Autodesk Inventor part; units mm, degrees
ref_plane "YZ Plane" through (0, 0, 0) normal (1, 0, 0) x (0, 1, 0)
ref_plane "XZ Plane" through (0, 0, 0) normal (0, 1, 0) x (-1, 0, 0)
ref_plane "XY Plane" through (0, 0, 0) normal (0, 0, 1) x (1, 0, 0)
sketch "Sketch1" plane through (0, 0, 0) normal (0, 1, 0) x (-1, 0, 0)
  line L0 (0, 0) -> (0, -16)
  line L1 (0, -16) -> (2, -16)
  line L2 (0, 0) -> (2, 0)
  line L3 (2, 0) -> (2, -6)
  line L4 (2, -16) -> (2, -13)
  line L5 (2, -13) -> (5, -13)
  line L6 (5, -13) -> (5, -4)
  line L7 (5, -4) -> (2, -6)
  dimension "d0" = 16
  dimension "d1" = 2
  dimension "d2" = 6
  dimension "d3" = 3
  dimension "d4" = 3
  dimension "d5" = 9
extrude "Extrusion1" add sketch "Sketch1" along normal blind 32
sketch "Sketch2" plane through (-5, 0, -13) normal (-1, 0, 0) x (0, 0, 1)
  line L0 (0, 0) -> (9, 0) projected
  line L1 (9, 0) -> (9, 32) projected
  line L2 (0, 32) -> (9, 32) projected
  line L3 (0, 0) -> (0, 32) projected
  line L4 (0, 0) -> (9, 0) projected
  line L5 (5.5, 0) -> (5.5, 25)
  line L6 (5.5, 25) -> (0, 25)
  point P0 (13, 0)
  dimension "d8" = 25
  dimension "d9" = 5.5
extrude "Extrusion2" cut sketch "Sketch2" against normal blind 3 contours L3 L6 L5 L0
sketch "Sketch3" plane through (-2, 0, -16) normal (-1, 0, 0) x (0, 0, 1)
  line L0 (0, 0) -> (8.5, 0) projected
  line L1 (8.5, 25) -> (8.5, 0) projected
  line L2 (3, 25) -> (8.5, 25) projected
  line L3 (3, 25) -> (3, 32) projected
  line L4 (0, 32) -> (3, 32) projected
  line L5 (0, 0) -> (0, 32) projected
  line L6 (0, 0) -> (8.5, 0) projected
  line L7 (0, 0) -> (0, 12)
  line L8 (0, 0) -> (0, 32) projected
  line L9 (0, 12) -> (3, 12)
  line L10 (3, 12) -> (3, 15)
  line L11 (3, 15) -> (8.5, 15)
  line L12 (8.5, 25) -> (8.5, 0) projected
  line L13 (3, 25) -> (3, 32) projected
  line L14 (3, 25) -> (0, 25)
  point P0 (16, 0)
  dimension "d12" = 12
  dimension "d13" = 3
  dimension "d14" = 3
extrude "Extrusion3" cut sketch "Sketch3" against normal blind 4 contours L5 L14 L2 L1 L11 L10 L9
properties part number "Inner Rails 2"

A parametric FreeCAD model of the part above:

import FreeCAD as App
import Part
import Sketcher
from FreeCAD import Vector
Q = App.Units.Quantity


def add_polygon(sketch, points):
    """Adds a closed chain of lines whose ends are joined by coincident constraints."""
    first, n = sketch.GeometryCount, len(points)
    for a, b in zip(points, points[1:] + points[:1]):
        sketch.addGeometry(Part.LineSegment(App.Vector(*a, 0), App.Vector(*b, 0)), False)
    for i in range(n):
        sketch.addConstraint(Sketcher.Constraint("Coincident", first + i, 2, first + (i + 1) % n, 1))

doc = App.newDocument("Part")
params = doc.addObject("Spreadsheet::Sheet", "Params")
for row, (alias, value) in enumerate([
    ("sketch1_width", "2 mm"),
    ("sketch1_width2", "3 mm"),
    ("sketch1_height", "16 mm"),
    ("sketch1_height2", "9 mm"),
    ("sketch1_height3", "6 mm"),
    ("pad1_length", "32 mm"),
    ("sketch2_width", "25 mm"),
    ("sketch2_height", "5.5 mm"),
    ("pocket1_length", "3 mm"),
    ("sketch3_width", "3 mm"),
    ("sketch3_width2", "13 mm"),
    ("sketch3_height", "5.5 mm"),
    ("pocket2_length", "4 mm"),
], start=1):
    params.set(f"A{row}", alias)
    params.set(f"B{row}", "=" + value)
    params.setAlias(f"B{row}", alias)

body = doc.addObject("PartDesign::Body", "Body")

# Sketch on XZ plane
sketch1 = body.newObject("Sketcher::SketchObject", "Sketch")
sketch1.AttachmentSupport = (doc.getObject("XZ_Plane"), [""])
sketch1.MapMode = "FlatFace"
add_polygon(sketch1, [(-2, 0), (0, 0), (0, -16), (-2, -16), (-2, -13), (-5, -13), (-5, -4), (-2, -6)])  # lines 0-7
sketch1.addConstraint(Sketcher.Constraint("Horizontal", 0))
sketch1.addConstraint(Sketcher.Constraint("Vertical", 1))
sketch1.addConstraint(Sketcher.Constraint("Horizontal", 2))
sketch1.addConstraint(Sketcher.Constraint("Vertical", 3))
sketch1.addConstraint(Sketcher.Constraint("Horizontal", 4))
sketch1.addConstraint(Sketcher.Constraint("Vertical", 5))
sketch1.addConstraint(Sketcher.Constraint("Vertical", 7))
sketch1.addConstraint(Sketcher.Constraint("Coincident", 0, 2, -1, 1))
sketch1.addConstraint(Sketcher.Constraint("Vertical", 3, 2, 6, 2))
sketch1.addConstraint(Sketcher.Constraint("Equal", 4, 3))
sketch1.addConstraint(Sketcher.Constraint("DistanceX", 0, 1, 0, 2, Q("2 mm")))
sketch1.addConstraint(Sketcher.Constraint("DistanceX", 4, 2, 4, 1, Q("3 mm")))
sketch1.addConstraint(Sketcher.Constraint("DistanceY", 1, 2, 1, 1, Q("16 mm")))
sketch1.addConstraint(Sketcher.Constraint("DistanceY", 5, 1, 5, 2, Q("9 mm")))
sketch1.addConstraint(Sketcher.Constraint("DistanceY", 7, 1, 7, 2, Q("6 mm")))
sketch1.setExpression("Constraints[18]", "Params.sketch1_width")
sketch1.setExpression("Constraints[19]", "Params.sketch1_width2")
sketch1.setExpression("Constraints[20]", "Params.sketch1_height")
sketch1.setExpression("Constraints[21]", "Params.sketch1_height2")
sketch1.setExpression("Constraints[22]", "Params.sketch1_height3")
pad1 = body.newObject("PartDesign::Pad", "Pad")
pad1.Profile = sketch1
pad1.setExpression("Length", "Params.pad1_length")
pad1.Reversed = True

# Sketch on YZ plane
sketch2 = body.newObject("Sketcher::SketchObject", "Sketch001")
sketch2.AttachmentSupport = (doc.getObject("YZ_Plane"), [""])
sketch2.MapMode = "FlatFace"
sketch2.AttachmentOffset = App.Placement(Vector(0, 0, -5), App.Rotation())
add_polygon(sketch2, [(25, -13), (0, -13), (0, -8), (25, -8)])  # lines 0-3
sketch2.addConstraint(Sketcher.Constraint("Horizontal", 0))
sketch2.addConstraint(Sketcher.Constraint("Vertical", 1))
sketch2.addConstraint(Sketcher.Constraint("Horizontal", 2))
sketch2.addConstraint(Sketcher.Constraint("Vertical", 3))
sketch2.addConstraint(Sketcher.Constraint("PointOnObject", 0, 2, -2))
sketch2.addConstraint(Sketcher.Constraint("DistanceX", 0, 2, 0, 1, Q("25 mm")))
sketch2.addConstraint(Sketcher.Constraint("DistanceY", 1, 1, 1, 2, Q("5.5 mm")))
sketch2.addConstraint(Sketcher.Constraint("DistanceY", 0, 2, -1, 1, Q("13 mm")))
sketch2.setExpression("Constraints[9]", "Params.sketch2_width")
sketch2.setExpression("Constraints[10]", "Params.sketch2_height")
pocket1 = body.newObject("PartDesign::Pocket", "Pocket")
pocket1.Profile = sketch2
pocket1.setExpression("Length", "Params.pocket1_length")
pocket1.Reversed = True

# Sketch on YZ plane
sketch3 = body.newObject("Sketcher::SketchObject", "Sketch002")
sketch3.AttachmentSupport = (doc.getObject("YZ_Plane"), [""])
sketch3.MapMode = "FlatFace"
sketch3.AttachmentOffset = App.Placement(Vector(0, 0, -2), App.Rotation())
add_polygon(sketch3, [(25, -16), (12, -16), (12, -13), (15, -13), (15, -7.5), (25, -7.5)])  # lines 0-5
sketch3.addConstraint(Sketcher.Constraint("Horizontal", 0))
sketch3.addConstraint(Sketcher.Constraint("Vertical", 1))
sketch3.addConstraint(Sketcher.Constraint("Horizontal", 2))
sketch3.addConstraint(Sketcher.Constraint("Vertical", 3))
sketch3.addConstraint(Sketcher.Constraint("Horizontal", 4))
sketch3.addConstraint(Sketcher.Constraint("Vertical", 5))
sketch3.addConstraint(Sketcher.Constraint("Equal", 2, 1))
sketch3.addConstraint(Sketcher.Constraint("DistanceX", 2, 1, 2, 2, Q("3 mm")))
sketch3.addConstraint(Sketcher.Constraint("DistanceX", -1, 1, 0, 2, Q("12 mm")))
sketch3.addConstraint(Sketcher.Constraint("DistanceX", 0, 2, 0, 1, Q("13 mm")))
sketch3.addConstraint(Sketcher.Constraint("DistanceY", 3, 1, 3, 2, Q("5.5 mm")))
sketch3.addConstraint(Sketcher.Constraint("DistanceY", 0, 2, -1, 1, Q("16 mm")))
sketch3.setExpression("Constraints[13]", "Params.sketch3_width")
sketch3.setExpression("Constraints[15]", "Params.sketch3_width2")
sketch3.setExpression("Constraints[16]", "Params.sketch3_height")
pocket2 = body.newObject("PartDesign::Pocket", "Pocket001")
pocket2.Profile = sketch3
pocket2.setExpression("Length", "Params.pocket2_length")
pocket2.Reversed = True

doc.recompute()
